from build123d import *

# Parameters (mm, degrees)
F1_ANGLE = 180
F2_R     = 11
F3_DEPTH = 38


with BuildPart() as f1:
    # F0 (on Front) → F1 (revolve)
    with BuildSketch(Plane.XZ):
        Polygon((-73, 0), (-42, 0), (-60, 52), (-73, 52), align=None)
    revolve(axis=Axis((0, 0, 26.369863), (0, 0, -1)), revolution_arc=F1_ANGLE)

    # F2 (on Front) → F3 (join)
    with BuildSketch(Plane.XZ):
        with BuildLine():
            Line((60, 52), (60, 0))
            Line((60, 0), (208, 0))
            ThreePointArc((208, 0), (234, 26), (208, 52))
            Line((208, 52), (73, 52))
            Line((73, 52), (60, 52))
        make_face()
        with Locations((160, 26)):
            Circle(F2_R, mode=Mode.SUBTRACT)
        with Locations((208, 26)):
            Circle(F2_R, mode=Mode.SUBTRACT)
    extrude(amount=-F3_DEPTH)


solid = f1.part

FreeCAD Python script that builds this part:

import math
import FreeCAD as App
import Part
import Sketcher

V = App.Vector
Q = App.Units.Quantity


def add_polygon(sketch, points):
    """Adds a closed chain of lines whose ends are joined by coincident constraints."""
    first, n = sketch.GeometryCount, len(points)
    for a, b in zip(points, points[1:] + points[:1]):
        sketch.addGeometry(Part.LineSegment(App.Vector(*a, 0), App.Vector(*b, 0)), False)
    for i in range(n):
        sketch.addConstraint(Sketcher.Constraint("Coincident", first + i, 2, first + (i + 1) % n, 1))

doc = App.newDocument("Part")
body = doc.addObject("PartDesign::Body", "Body")

sketch1 = body.newObject("Sketcher::SketchObject", "Sketch")
sketch1.AttachmentSupport = (doc.getObject("XZ_Plane"), [""])
sketch1.MapMode = "FlatFace"
add_polygon(sketch1, [(-73, 0), (-42, 0), (-60, 52), (-73, 52)])
sketch1.addConstraint([
    Sketcher.Constraint("Horizontal", 0),
    Sketcher.Constraint("Horizontal", 2),
    Sketcher.Constraint("Vertical", 3),
    Sketcher.Constraint("PointOnObject", 0, 2, -1),
    Sketcher.Constraint("DistanceX", 0, 1, 0, 2, Q("31 mm")),
    Sketcher.Constraint("DistanceX", 2, 2, 2, 1, Q("13 mm")),
    Sketcher.Constraint("DistanceY", 3, 2, 3, 1, Q("52 mm")),
    Sketcher.Constraint("DistanceX", 0, 2, -1, 1, Q("42 mm")),
])
revolution = body.newObject("PartDesign::Revolution", "Revolution")
revolution.Profile = sketch1
revolution.ReferenceAxis = (sketch1, ["V_Axis"])
revolution.Angle = 180
revolution.Reversed = True

sketch2 = body.newObject("Sketcher::SketchObject", "Sketch001")
sketch2.AttachmentSupport = (doc.getObject("XZ_Plane"), [""])
sketch2.MapMode = "FlatFace"
sketch2.addGeometry([
    Part.LineSegment(V(60, 52, 0), V(60, 0, 0)),
    Part.LineSegment(V(60, 0, 0), V(208, 0, 0)),
    Part.ArcOfCircle(Part.Circle(V(208, 26, 0), V(0, 0, 1), 26), math.radians(-90), math.radians(90)),
    Part.LineSegment(V(208, 52, 0), V(60, 52, 0)),
    Part.Circle(V(160, 26, 0), V(0, 0, 1), 11),
    Part.Circle(V(208, 26, 0), V(0, 0, 1), 11),
], False)
sketch2.addConstraint([
    Sketcher.Constraint("Coincident", 0, 2, 1, 1),
    Sketcher.Constraint("Tangent", 1, 2, 2, 1),
    Sketcher.Constraint("Tangent", 2, 2, 3, 1),
    Sketcher.Constraint("Coincident", 3, 2, 0, 1),
    Sketcher.Constraint("Vertical", 0),
    Sketcher.Constraint("Horizontal", 1),
    Sketcher.Constraint("Horizontal", 3),
    Sketcher.Constraint("Coincident", 5, 3, 2, 3),
    Sketcher.Constraint("Equal", 4, 5),
    Sketcher.Constraint("PointOnObject", 0, 2, -1),
    Sketcher.Constraint("Horizontal", 2, 3, 4, 3),
    Sketcher.Constraint("Diameter", 4, Q("22 mm")),
    Sketcher.Constraint("Radius", 2, Q("26 mm")),
    Sketcher.Constraint("DistanceX", 1, 1, 1, 2, Q("148 mm")),
    Sketcher.Constraint("DistanceX", -1, 1, 2, 3, Q("208 mm")),
    Sketcher.Constraint("DistanceX", -1, 1, 4, 3, Q("160 mm")),
])
pad1 = body.newObject("PartDesign::Pad", "Pad")
pad1.Profile = sketch2
pad1.Length = 38
pad1.Reversed = True

doc.recompute()
